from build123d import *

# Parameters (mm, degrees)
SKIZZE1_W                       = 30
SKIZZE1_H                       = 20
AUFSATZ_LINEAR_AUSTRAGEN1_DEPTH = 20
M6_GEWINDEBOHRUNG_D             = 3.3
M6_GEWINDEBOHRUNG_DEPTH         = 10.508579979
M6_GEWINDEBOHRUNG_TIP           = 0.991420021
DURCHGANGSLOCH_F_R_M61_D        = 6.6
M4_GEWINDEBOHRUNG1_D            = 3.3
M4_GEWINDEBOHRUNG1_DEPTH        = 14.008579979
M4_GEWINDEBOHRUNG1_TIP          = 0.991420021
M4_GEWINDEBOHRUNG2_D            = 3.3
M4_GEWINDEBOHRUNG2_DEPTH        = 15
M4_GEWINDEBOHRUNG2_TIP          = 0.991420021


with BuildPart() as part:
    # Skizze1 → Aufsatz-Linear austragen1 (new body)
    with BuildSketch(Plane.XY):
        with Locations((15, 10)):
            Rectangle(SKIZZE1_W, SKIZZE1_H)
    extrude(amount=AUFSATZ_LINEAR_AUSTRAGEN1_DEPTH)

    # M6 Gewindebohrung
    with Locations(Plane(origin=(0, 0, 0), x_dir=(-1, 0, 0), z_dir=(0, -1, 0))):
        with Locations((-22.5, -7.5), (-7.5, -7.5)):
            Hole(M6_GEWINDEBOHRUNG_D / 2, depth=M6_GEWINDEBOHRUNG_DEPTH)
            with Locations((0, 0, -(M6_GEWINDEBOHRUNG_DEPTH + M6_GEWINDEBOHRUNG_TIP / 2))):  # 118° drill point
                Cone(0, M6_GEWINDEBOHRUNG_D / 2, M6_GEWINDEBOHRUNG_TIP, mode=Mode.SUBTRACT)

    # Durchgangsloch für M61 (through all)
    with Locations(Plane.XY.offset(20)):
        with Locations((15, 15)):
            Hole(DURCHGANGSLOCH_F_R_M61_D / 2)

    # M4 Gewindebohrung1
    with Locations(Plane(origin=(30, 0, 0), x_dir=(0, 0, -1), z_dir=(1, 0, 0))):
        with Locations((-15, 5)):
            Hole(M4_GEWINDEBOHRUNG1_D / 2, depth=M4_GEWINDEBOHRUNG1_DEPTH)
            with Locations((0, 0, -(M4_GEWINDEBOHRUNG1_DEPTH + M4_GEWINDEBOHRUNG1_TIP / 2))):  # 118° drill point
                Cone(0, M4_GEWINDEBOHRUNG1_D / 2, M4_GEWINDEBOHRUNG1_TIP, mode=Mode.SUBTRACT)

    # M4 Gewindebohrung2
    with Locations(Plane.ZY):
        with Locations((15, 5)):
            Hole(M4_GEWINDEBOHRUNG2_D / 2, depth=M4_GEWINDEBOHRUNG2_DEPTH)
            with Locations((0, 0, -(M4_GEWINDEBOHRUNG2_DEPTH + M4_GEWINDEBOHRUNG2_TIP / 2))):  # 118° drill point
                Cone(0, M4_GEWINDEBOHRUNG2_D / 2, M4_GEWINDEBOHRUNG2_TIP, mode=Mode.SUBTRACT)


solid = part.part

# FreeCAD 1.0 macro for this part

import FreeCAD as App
import Part
import Sketcher

V = App.Vector
Q = App.Units.Quantity


def add_polygon(sketch, points):
    """Adds a closed chain of lines whose ends are joined by coincident constraints."""
    first, n = sketch.GeometryCount, len(points)
    for a, b in zip(points, points[1:] + points[:1]):
        sketch.addGeometry(Part.LineSegment(App.Vector(*a, 0), App.Vector(*b, 0)), False)
    for i in range(n):
        sketch.addConstraint(Sketcher.Constraint("Coincident", first + i, 2, first + (i + 1) % n, 1))

doc = App.newDocument("Part")
body = doc.addObject("PartDesign::Body", "Body")

# Sketch on XY plane
sketch1 = body.newObject("Sketcher::SketchObject", "Sketch")
sketch1.AttachmentSupport = (doc.getObject("XY_Plane"), [""])
sketch1.MapMode = "FlatFace"
add_polygon(sketch1, [(0, 20), (0, 0), (30, 0), (30, 20)])  # lines 0-3
sketch1.addConstraint([
    Sketcher.Constraint("Vertical", 0),
    Sketcher.Constraint("Horizontal", 1),
    Sketcher.Constraint("Vertical", 2),
    Sketcher.Constraint("Horizontal", 3),
    Sketcher.Constraint("Coincident", 0, 2, -1, 1),
    Sketcher.Constraint("DistanceX", 1, 1, 1, 2, Q("30 mm")),
    Sketcher.Constraint("DistanceY", 0, 2, 0, 1, Q("20 mm")),
])
pad1 = body.newObject("PartDesign::Pad", "Pad")
pad1.Profile = sketch1
pad1.Length = 20

# Sketch on XZ plane
sketch2 = body.newObject("Sketcher::SketchObject", "Sketch001")
sketch2.AttachmentSupport = (doc.getObject("XZ_Plane"), [""])
sketch2.MapMode = "FlatFace"
sketch2.addGeometry([
    Part.Circle(V(22.5, 7.5, 0), V(0, 0, 1), 1.6),
    Part.Circle(V(7.5, 7.5, 0), V(0, 0, 1), 1.6),
], False)
sketch2.addConstraint([
    Sketcher.Constraint("Equal", 0, 1),
    Sketcher.Constraint("Horizontal", 0, 3, 1, 3),
    Sketcher.Constraint("Diameter", 0, Q("3.3 mm")),
    Sketcher.Constraint("DistanceX", 1, 3, 0, 3, Q("15 mm")),
    Sketcher.Constraint("DistanceX", -1, 1, 0, 3, Q("22.5 mm")),
    Sketcher.Constraint("DistanceY", -1, 1, 0, 3, Q("7.5 mm")),
])
doc.recompute()
hole = body.newObject("PartDesign::Hole", "Hole")
hole.Profile = sketch2
hole.ThreadType = "None"
hole.Diameter = 3.3
hole.DepthType = "Dimension"
hole.Depth = 10.50858
hole.DrillPoint = "Angled"
hole.DrillPointAngle = 118

# Sketch on XY plane
sketch3 = body.newObject("Sketcher::SketchObject", "Sketch002")
sketch3.AttachmentSupport = (doc.getObject("XY_Plane"), [""])
sketch3.MapMode = "FlatFace"
sketch3.AttachmentOffset = App.Placement(V(0, 0, 20), App.Rotation())
sketch3.addGeometry(Part.Circle(V(15, 15, 0), V(0, 0, 1), 3.3), False)
sketch3.addConstraint([
    Sketcher.Constraint("Diameter", 0, Q("6.6 mm")),
    Sketcher.Constraint("DistanceX", -1, 1, 0, 3, Q("15 mm")),
    Sketcher.Constraint("DistanceY", -1, 1, 0, 3, Q("15 mm")),
])
doc.recompute()
hole2 = body.newObject("PartDesign::Hole", "Hole001")
hole2.Profile = sketch3
hole2.ThreadType = "None"
hole2.Diameter = 6.6
hole2.DepthType = "ThroughAll"

# Sketch on YZ plane
sketch4 = body.newObject("Sketcher::SketchObject", "Sketch003")
sketch4.AttachmentSupport = (doc.getObject("YZ_Plane"), [""])
sketch4.MapMode = "FlatFace"
sketch4.AttachmentOffset = App.Placement(V(0, 0, 30), App.Rotation())
sketch4.addGeometry(Part.Circle(V(5, 15, 0), V(0, 0, 1), 1.6), False)
sketch4.addConstraint([
    Sketcher.Constraint("Diameter", 0, Q("3.3 mm")),
    Sketcher.Constraint("DistanceX", -1, 1, 0, 3, Q("5 mm")),
    Sketcher.Constraint("DistanceY", -1, 1, 0, 3, Q("15 mm")),
])
doc.recompute()
hole3 = body.newObject("PartDesign::Hole", "Hole002")
hole3.Profile = sketch4
hole3.ThreadType = "None"
hole3.Diameter = 3.3
hole3.DepthType = "Dimension"
hole3.Depth = 14.00858
hole3.DrillPoint = "Angled"
hole3.DrillPointAngle = 118

# Sketch on YZ plane
sketch5 = body.newObject("Sketcher::SketchObject", "Sketch004")
sketch5.AttachmentSupport = (doc.getObject("YZ_Plane"), [""])
sketch5.MapMode = "FlatFace"
sketch5.addGeometry(Part.Circle(V(5, 15, 0), V(0, 0, 1), 1.6), False)
sketch5.addConstraint([
    Sketcher.Constraint("Diameter", 0, Q("3.3 mm")),
    Sketcher.Constraint("DistanceX", -1, 1, 0, 3, Q("5 mm")),
    Sketcher.Constraint("DistanceY", -1, 1, 0, 3, Q("15 mm")),
])
doc.recompute()
hole4 = body.newObject("PartDesign::Hole", "Hole003")
hole4.Profile = sketch5
hole4.ThreadType = "None"
hole4.Diameter = 3.3
hole4.DepthType = "Dimension"
hole4.Depth = 15
hole4.DrillPoint = "Angled"
hole4.DrillPointAngle = 118
hole4.Reversed = True

doc.recompute()
